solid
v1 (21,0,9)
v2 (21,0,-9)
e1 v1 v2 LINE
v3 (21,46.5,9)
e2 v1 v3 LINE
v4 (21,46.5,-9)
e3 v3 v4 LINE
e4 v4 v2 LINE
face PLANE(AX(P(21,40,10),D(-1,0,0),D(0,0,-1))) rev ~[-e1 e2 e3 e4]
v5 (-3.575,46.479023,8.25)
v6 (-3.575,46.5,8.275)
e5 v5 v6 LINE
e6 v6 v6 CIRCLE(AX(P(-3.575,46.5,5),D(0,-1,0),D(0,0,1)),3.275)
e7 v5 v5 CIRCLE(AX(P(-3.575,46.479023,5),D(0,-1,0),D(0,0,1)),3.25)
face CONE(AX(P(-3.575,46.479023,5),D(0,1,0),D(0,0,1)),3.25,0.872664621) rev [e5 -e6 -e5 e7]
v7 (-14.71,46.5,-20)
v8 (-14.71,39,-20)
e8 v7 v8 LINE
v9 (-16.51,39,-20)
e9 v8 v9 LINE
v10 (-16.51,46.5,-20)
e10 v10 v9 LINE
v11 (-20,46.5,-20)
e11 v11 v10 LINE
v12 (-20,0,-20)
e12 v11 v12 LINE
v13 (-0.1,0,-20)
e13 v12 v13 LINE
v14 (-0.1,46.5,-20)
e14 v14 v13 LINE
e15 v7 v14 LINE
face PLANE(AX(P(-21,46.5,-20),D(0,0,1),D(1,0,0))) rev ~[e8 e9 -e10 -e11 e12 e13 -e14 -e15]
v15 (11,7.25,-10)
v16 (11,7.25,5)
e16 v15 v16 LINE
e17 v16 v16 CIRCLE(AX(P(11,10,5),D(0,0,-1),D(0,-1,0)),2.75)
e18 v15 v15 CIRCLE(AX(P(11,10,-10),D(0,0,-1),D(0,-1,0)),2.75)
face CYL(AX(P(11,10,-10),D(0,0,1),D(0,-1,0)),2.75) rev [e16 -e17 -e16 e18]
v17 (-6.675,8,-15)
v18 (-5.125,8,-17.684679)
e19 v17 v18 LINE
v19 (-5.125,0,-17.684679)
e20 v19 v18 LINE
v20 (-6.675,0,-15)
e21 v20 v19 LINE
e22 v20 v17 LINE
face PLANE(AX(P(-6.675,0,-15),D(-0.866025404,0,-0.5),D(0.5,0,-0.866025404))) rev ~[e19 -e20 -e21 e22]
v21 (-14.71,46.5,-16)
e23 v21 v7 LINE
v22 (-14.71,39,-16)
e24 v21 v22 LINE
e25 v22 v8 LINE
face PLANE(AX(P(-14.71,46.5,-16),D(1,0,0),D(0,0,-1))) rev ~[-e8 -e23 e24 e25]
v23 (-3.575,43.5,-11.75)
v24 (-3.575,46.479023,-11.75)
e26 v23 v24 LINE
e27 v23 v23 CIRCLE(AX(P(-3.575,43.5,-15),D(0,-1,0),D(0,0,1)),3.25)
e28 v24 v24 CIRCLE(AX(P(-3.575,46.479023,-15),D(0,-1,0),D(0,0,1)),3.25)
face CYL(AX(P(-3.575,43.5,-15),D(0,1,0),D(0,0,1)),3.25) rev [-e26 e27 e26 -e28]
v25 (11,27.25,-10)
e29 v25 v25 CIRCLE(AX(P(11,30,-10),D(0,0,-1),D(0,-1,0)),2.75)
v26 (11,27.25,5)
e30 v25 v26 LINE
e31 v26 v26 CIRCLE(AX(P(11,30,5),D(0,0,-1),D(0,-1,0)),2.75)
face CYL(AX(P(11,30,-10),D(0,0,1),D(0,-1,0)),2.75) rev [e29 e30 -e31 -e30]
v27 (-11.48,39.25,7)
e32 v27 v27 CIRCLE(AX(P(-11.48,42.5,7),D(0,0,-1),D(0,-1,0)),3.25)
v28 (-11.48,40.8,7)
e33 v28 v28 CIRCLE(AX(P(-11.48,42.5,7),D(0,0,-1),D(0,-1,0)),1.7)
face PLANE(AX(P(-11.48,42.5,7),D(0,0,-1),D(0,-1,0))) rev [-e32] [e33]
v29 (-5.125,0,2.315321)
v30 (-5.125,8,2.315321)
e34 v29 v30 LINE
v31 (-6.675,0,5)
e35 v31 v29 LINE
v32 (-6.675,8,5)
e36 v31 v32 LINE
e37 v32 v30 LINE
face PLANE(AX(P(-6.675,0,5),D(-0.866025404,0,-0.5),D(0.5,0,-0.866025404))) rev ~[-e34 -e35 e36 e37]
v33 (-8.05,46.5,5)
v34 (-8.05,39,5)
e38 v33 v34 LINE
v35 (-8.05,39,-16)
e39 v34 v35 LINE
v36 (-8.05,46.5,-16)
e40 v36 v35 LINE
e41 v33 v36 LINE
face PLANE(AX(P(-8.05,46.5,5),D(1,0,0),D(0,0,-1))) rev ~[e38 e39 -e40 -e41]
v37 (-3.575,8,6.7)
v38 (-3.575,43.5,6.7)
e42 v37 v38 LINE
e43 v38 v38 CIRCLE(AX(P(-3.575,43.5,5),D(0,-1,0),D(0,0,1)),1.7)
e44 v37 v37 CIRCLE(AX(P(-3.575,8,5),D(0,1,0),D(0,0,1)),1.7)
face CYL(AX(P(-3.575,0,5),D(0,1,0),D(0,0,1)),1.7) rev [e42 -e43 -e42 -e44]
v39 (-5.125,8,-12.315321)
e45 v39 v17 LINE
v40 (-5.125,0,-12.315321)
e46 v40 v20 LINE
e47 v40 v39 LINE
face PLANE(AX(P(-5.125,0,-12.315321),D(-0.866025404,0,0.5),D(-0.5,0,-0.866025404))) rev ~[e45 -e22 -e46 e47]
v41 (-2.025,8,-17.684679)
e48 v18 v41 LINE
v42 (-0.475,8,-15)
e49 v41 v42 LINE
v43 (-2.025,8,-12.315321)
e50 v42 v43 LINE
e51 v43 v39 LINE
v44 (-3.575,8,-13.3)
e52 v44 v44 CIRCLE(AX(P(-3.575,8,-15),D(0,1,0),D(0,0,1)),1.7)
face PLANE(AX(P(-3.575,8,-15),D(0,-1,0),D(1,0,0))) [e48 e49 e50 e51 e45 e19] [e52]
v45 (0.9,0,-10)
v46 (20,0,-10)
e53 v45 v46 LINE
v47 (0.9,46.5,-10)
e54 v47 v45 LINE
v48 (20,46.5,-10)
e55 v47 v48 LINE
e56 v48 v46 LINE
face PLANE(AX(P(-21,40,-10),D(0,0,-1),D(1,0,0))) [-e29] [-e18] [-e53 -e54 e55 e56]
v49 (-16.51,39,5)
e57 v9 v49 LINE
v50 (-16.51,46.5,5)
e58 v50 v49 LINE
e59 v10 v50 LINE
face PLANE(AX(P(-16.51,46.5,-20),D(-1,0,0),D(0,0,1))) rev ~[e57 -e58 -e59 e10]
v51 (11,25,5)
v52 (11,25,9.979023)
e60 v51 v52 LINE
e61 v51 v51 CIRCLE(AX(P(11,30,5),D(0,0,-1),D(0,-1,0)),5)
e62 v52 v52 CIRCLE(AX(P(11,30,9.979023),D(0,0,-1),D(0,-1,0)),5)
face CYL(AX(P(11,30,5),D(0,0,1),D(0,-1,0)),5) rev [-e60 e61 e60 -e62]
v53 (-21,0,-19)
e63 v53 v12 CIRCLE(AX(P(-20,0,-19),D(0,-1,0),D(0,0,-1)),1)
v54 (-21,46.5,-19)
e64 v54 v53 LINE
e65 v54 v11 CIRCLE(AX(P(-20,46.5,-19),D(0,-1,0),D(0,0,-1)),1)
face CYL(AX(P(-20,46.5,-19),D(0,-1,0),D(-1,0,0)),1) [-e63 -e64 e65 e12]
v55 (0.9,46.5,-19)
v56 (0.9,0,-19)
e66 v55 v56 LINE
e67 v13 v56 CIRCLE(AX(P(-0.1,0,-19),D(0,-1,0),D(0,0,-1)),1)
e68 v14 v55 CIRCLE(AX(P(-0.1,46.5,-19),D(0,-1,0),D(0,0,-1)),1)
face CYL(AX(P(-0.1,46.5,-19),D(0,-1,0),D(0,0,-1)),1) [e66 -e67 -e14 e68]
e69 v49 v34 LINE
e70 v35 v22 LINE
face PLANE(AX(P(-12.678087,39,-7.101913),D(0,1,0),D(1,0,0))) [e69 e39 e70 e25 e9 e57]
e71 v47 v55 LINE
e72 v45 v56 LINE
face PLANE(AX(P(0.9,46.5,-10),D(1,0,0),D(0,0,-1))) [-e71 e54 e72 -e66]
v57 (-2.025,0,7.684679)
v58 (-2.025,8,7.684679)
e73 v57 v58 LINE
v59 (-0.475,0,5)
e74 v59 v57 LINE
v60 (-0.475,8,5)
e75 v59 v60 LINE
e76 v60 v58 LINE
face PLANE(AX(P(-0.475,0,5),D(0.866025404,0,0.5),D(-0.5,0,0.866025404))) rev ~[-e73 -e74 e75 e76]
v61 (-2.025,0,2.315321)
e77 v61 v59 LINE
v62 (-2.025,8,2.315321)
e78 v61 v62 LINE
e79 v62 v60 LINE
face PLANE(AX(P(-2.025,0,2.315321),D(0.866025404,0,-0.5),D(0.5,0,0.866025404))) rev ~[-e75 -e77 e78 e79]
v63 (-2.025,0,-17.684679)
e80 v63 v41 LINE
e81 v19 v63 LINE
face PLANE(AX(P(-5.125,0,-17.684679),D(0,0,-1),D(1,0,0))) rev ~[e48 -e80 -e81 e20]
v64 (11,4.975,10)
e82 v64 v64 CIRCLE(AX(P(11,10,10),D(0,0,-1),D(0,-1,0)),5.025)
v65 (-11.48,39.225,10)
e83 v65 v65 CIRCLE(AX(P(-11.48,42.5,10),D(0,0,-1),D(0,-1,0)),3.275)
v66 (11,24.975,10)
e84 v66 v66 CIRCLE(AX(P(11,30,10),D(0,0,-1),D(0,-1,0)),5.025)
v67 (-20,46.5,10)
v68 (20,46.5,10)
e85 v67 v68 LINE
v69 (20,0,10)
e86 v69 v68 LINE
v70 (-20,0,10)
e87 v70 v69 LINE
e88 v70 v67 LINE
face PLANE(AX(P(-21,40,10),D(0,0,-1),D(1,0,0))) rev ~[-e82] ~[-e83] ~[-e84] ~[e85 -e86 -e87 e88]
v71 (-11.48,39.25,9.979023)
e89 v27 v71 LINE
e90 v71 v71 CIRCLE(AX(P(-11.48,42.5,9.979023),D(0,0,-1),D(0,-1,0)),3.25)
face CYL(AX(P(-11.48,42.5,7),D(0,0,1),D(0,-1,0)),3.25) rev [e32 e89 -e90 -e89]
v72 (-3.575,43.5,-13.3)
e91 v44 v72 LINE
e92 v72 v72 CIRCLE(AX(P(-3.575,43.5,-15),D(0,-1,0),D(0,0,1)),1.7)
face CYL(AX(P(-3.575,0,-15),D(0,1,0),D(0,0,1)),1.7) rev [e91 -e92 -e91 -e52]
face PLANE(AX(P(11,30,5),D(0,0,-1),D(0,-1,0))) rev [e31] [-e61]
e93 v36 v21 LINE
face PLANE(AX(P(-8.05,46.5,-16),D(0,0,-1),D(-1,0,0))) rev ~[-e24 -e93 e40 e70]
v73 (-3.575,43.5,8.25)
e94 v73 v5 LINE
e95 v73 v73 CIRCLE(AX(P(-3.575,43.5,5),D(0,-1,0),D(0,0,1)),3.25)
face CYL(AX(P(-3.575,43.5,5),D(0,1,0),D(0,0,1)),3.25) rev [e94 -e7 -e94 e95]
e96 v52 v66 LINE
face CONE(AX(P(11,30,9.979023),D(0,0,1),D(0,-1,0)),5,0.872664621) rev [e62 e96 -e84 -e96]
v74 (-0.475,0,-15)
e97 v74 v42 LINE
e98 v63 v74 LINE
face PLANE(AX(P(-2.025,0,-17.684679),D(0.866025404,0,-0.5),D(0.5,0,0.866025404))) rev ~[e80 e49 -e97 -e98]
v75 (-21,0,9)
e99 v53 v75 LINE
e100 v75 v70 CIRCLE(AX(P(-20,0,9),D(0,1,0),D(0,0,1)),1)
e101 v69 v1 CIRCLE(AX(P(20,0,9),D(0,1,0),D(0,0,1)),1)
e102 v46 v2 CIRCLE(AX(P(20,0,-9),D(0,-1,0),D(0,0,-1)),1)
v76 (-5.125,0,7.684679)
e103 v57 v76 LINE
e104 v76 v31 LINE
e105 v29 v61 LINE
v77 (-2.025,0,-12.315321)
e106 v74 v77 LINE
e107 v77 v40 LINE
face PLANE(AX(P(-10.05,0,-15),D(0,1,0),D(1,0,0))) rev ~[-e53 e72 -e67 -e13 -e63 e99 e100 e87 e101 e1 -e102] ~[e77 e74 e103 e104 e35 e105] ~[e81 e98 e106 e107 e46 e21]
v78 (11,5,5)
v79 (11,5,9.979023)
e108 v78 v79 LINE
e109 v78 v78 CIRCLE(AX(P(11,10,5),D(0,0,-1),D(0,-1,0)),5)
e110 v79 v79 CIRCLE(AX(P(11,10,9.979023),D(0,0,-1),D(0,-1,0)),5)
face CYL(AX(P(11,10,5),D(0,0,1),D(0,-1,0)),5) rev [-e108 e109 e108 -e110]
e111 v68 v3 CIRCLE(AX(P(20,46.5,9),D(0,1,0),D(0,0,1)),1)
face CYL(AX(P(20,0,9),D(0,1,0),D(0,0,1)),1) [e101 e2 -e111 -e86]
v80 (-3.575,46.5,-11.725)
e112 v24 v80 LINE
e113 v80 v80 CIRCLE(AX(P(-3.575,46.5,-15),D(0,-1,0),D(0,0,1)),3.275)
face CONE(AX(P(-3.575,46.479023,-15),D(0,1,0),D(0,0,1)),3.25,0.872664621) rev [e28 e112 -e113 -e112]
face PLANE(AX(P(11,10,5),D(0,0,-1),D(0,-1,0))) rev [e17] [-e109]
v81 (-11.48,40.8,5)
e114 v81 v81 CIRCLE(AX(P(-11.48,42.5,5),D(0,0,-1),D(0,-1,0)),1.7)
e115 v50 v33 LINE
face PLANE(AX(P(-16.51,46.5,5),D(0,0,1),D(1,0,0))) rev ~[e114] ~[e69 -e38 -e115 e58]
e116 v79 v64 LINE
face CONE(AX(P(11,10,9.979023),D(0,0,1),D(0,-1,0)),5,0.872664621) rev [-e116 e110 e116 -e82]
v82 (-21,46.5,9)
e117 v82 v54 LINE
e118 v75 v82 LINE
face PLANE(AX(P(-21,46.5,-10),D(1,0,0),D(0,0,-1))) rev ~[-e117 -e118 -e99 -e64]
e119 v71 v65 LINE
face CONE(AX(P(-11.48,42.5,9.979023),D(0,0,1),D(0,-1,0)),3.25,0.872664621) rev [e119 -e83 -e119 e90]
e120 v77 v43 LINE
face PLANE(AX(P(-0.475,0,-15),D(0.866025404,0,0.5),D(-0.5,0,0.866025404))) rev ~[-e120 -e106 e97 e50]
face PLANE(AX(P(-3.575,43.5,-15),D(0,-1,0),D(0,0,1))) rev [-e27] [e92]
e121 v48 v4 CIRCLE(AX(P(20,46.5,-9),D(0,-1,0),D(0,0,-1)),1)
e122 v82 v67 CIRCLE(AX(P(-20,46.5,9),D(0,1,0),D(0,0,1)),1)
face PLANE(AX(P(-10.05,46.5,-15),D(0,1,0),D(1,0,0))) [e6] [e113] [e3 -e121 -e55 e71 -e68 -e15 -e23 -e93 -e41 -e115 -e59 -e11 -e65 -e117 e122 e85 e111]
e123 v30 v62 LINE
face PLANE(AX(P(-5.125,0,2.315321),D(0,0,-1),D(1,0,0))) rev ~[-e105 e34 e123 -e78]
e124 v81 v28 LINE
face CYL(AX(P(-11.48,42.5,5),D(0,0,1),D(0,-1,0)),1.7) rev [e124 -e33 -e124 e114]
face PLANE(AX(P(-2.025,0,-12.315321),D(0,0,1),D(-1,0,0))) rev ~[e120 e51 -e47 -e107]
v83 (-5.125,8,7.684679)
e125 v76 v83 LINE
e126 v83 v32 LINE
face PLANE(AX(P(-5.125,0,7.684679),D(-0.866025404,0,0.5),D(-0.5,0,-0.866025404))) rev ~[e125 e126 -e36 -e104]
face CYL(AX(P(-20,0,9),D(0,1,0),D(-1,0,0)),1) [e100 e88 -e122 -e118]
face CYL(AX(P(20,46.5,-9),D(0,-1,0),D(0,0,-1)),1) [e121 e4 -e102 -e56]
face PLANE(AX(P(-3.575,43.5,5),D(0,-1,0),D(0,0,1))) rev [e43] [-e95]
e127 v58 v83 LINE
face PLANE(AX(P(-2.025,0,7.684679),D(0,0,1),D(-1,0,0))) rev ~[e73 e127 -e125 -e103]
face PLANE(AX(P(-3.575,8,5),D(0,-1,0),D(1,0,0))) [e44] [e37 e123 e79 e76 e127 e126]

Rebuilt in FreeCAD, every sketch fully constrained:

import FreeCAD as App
import Part
import Sketcher
from FreeCAD import Vector
Q = App.Units.Quantity


def edges_at(feature, points):
    """Names of the edges that pass closest to the given points."""
    edges = feature.Shape.Edges
    near = lambda p: min(range(len(edges)), key=lambda i: edges[i].distToShape(Part.Vertex(*p))[0])
    return sorted({f"Edge{near(p) + 1}" for p in points})


def add_polygon(sketch, points):
    """Adds a closed chain of lines whose ends are joined by coincident constraints."""
    first, n = sketch.GeometryCount, len(points)
    for a, b in zip(points, points[1:] + points[:1]):
        sketch.addGeometry(Part.LineSegment(App.Vector(*a, 0), App.Vector(*b, 0)), False)
    for i in range(n):
        sketch.addConstraint(Sketcher.Constraint("Coincident", first + i, 2, first + (i + 1) % n, 1))

doc = App.newDocument("Part")
body = doc.addObject("PartDesign::Body", "Body")

sketch1 = body.newObject("Sketcher::SketchObject", "Sketch")
sketch1.AttachmentSupport = (doc.getObject("XZ_Plane"), [""])
sketch1.MapMode = "FlatFace"
add_polygon(sketch1, [(-21, -10), (-21, 10), (21, 10), (21, -10)])
sketch1.addConstraint([
    Sketcher.Constraint("Vertical", 0),
    Sketcher.Constraint("Horizontal", 1),
    Sketcher.Constraint("Vertical", 2),
    Sketcher.Constraint("Horizontal", 3),
    Sketcher.Constraint("Symmetric", 0, 2, 2, 2, -1, 1),
    Sketcher.Constraint("DistanceX", 1, 1, 1, 2, Q("42 mm")),
    Sketcher.Constraint("DistanceY", 0, 1, 0, 2, Q("20 mm")),
])
pad1 = body.newObject("PartDesign::Pad", "Pad")
pad1.Profile = sketch1
pad1.Length = 40
pad1.Reversed = True

sketch2 = body.newObject("Sketcher::SketchObject", "Sketch001")
sketch2.AttachmentSupport = (doc.getObject("YZ_Plane"), [""])
sketch2.MapMode = "FlatFace"
sketch2.AttachmentOffset = App.Placement(Vector(0, 0, 11), App.Rotation())
add_polygon(sketch2, [(30, -10), (30, 10), (24.975, 10), (25, 9.979023), (25, 5), (27.25, 5), (27.25, -10)])
sketch2.addGeometry(Part.LineSegment(Vector(30, 10, 0), Vector(30, -10, 0)), True)
sketch2.addConstraint([
    Sketcher.Constraint("Vertical", 0),
    Sketcher.Constraint("Horizontal", 1),
    Sketcher.Constraint("Vertical", 3),
    Sketcher.Constraint("Horizontal", 4),
    Sketcher.Constraint("Vertical", 5),
    Sketcher.Constraint("Horizontal", 6),
    Sketcher.Constraint("Vertical", 7),
    Sketcher.Constraint("Coincident", 7, 1, 0, 2),
    Sketcher.Constraint("Horizontal", 5, 2, 7, 2),
    Sketcher.Constraint("DistanceY", 0, 1, 0, 2, Q("20 mm")),
    Sketcher.Constraint("DistanceY", 5, 2, 5, 1, Q("15 mm")),
    Sketcher.Constraint("Angle", 2, Q("-40 deg")),
    Sketcher.Constraint("DistanceX", -1, 1, 0, 2, Q("30 mm")),
    Sketcher.Constraint("DistanceY", -1, 1, 0, 2, Q("10 mm")),
    Sketcher.Constraint("DistanceX", -1, 1, 2, 2, Q("25 mm")),
    Sketcher.Constraint("DistanceX", 4, 1, 4, 2, Q("2.25 mm")),
    Sketcher.Constraint("DistanceX", 1, 2, 1, 1, Q("5.025 mm")),
])
groove = body.newObject("PartDesign::Groove", "Groove")
groove.Profile = sketch2
groove.ReferenceAxis = (sketch2, ["Axis0"])
groove.Angle = 360
doc.recompute()

linearpattern = body.newObject("PartDesign::LinearPattern", "LinearPattern")
linearpattern.Originals = [groove]
linearpattern.Direction = (doc.getObject("Y_Axis"), [""])
linearpattern.Mode = "offset"
linearpattern.Offset = 20
linearpattern.Occurrences = 2
linearpattern.Reversed = True
body.Tip = linearpattern

sketch3 = body.newObject("Sketcher::SketchObject", "Sketch002")
sketch3.AttachmentSupport = (doc.getObject("XZ_Plane"), [""])
sketch3.MapMode = "FlatFace"
sketch3.AttachmentOffset = App.Placement(Vector(0, 0, -40), App.Rotation())
add_polygon(sketch3, [(-21, -10), (-21, 10), (21, 10), (21, -10)])
sketch3.addConstraint([
    Sketcher.Constraint("Vertical", 0),
    Sketcher.Constraint("Horizontal", 1),
    Sketcher.Constraint("Vertical", 2),
    Sketcher.Constraint("Horizontal", 3),
    Sketcher.Constraint("Symmetric", 0, 2, 2, 2, -1, 1),
    Sketcher.Constraint("DistanceX", 1, 1, 1, 2, Q("42 mm")),
    Sketcher.Constraint("DistanceY", 0, 1, 0, 2, Q("20 mm")),
])
pad2 = body.newObject("PartDesign::Pad", "Pad001")
pad2.Profile = sketch3
pad2.Length = 6.5
pad2.Reversed = True

sketch4 = body.newObject("Sketcher::SketchObject", "Sketch003")
sketch4.AttachmentSupport = (doc.getObject("XZ_Plane"), [""])
sketch4.MapMode = "FlatFace"
sketch4.AttachmentOffset = App.Placement(Vector(0, 0, -46.5), App.Rotation())
add_polygon(sketch4, [(-21, -20), (-21, -10), (0.9, -10), (0.9, -20)])
sketch4.addConstraint([
    Sketcher.Constraint("Vertical", 0),
    Sketcher.Constraint("Horizontal", 1),
    Sketcher.Constraint("Vertical", 2),
    Sketcher.Constraint("Horizontal", 3),
    Sketcher.Constraint("DistanceY", 0, 1, 0, 2, Q("10 mm")),
    Sketcher.Constraint("DistanceX", 1, 1, 1, 2, Q("21.9 mm")),
    Sketcher.Constraint("DistanceX", 0, 2, -1, 1, Q("21 mm")),
    Sketcher.Constraint("DistanceY", 0, 2, -1, 1, Q("10 mm")),
])
pad3 = body.newObject("PartDesign::Pad", "Pad002")
pad3.Profile = sketch4
pad3.Length = 46.5

sketch5 = body.newObject("Sketcher::SketchObject", "Sketch004")
sketch5.AttachmentSupport = (doc.getObject("XZ_Plane"), [""])
sketch5.MapMode = "FlatFace"
sketch5.AttachmentOffset = App.Placement(Vector(0, 0, -46.5), App.Rotation())
add_polygon(sketch5, [(-16.51, -20), (-16.51, 5), (-8.05, 5), (-8.05, -16), (-14.71, -16), (-14.71, -20)])
sketch5.addConstraint([
    Sketcher.Constraint("Vertical", 0),
    Sketcher.Constraint("Horizontal", 1),
    Sketcher.Constraint("Vertical", 2),
    Sketcher.Constraint("Horizontal", 3),
    Sketcher.Constraint("Vertical", 4),
    Sketcher.Constraint("Horizontal", 5),
    Sketcher.Constraint("DistanceY", 0, 1, 0, 2, Q("25 mm")),
    Sketcher.Constraint("DistanceY", 2, 2, 2, 1, Q("21 mm")),
    Sketcher.Constraint("DistanceX", 5, 2, 5, 1, Q("1.8 mm")),
    Sketcher.Constraint("DistanceY", -1, 1, 0, 2, Q("5 mm")),
    Sketcher.Constraint("DistanceX", 1, 1, 1, 2, Q("8.46 mm")),
    Sketcher.Constraint("DistanceX", 0, 2, -1, 1, Q("16.51 mm")),
])
pocket1 = body.newObject("PartDesign::Pocket", "Pocket")
pocket1.Profile = sketch5
pocket1.Length = 7.5
pocket1.Reversed = True
doc.recompute()

fillet = body.newObject("PartDesign::Fillet", "Fillet")
fillet.Base = (pocket1, edges_at(pocket1, [
    (0.9, 23.25, -20),
    (-21, 23.25, -20),
    (21, 23.25, -10),
    (21, 23.25, 10),
    (-21, 23.25, 10),
]))
fillet.Radius = 1

sketch6 = body.newObject("Sketcher::SketchObject", "Sketch005")
sketch6.AttachmentSupport = (doc.getObject("YZ_Plane"), [""])
sketch6.MapMode = "FlatFace"
sketch6.AttachmentOffset = App.Placement(Vector(0, 0, -11.48), App.Rotation())
add_polygon(sketch6, [(42.5, 3.978537), (42.5, 10), (39.225, 10), (39.25, 9.979023), (39.25, 7), (40.8, 7), (40.8, 5)])
sketch6.addGeometry(Part.LineSegment(Vector(42.5, 10, 0), Vector(42.5, 3.978537, 0)), True)
sketch6.addConstraint([
    Sketcher.Constraint("Vertical", 0),
    Sketcher.Constraint("Horizontal", 1),
    Sketcher.Constraint("Vertical", 3),
    Sketcher.Constraint("Horizontal", 4),
    Sketcher.Constraint("Vertical", 5),
    Sketcher.Constraint("Vertical", 7),
    Sketcher.Constraint("Coincident", 7, 1, 0, 2),
    Sketcher.Constraint("Equal", 0, 7),
    Sketcher.Constraint("DistanceY", 5, 2, 5, 1, Q("2 mm")),
    Sketcher.Constraint("Angle", 2, Q("-40 deg")),
    Sketcher.Constraint("Angle", 6, Q("-31 deg")),
    Sketcher.Constraint("DistanceY", -1, 1, 0, 2, Q("10 mm")),
    Sketcher.Constraint("DistanceY", -1, 1, 3, 2, Q("7 mm")),
    Sketcher.Constraint("DistanceX", 4, 1, 4, 2, Q("1.55 mm")),
    Sketcher.Constraint("DistanceX", -1, 1, 0, 2, Q("42.5 mm")),
    Sketcher.Constraint("DistanceX", -1, 1, 4, 2, Q("40.8 mm")),
    Sketcher.Constraint("DistanceX", 1, 2, 1, 1, Q("3.275 mm")),
])
groove2 = body.newObject("PartDesign::Groove", "Groove001")
groove2.Profile = sketch6
groove2.ReferenceAxis = (sketch6, ["Axis0"])
groove2.Angle = 360

sketch7 = body.newObject("Sketcher::SketchObject", "Sketch006")
sketch7.AttachmentSupport = (doc.getObject("YZ_Plane"), [""])
sketch7.MapMode = "FlatFace"
sketch7.AttachmentOffset = App.Placement(Vector(0, 0, -3.575), App.Rotation())
add_polygon(sketch7, [(0, -15), (46.5, -15), (46.5, -11.725), (46.479023, -11.75), (43.5, -11.75), (43.5, -13.3), (0, -13.3)])
sketch7.addGeometry(Part.LineSegment(Vector(46.5, -15, 0), Vector(0, -15, 0)), True)
sketch7.addConstraint([
    Sketcher.Constraint("Horizontal", 0),
    Sketcher.Constraint("Vertical", 1),
    Sketcher.Constraint("Horizontal", 3),
    Sketcher.Constraint("Vertical", 4),
    Sketcher.Constraint("Horizontal", 5),
    Sketcher.Constraint("Vertical", 6),
    Sketcher.Constraint("Horizontal", 7),
    Sketcher.Constraint("Coincident", 7, 1, 0, 2),
    Sketcher.Constraint("PointOnObject", 5, 2, -2),
    Sketcher.Constraint("PointOnObject", 7, 2, -2),
    Sketcher.Constraint("Angle", 2, Q("-130 deg")),
    Sketcher.Constraint("DistanceX", 0, 1, 0, 2, Q("46.5 mm")),
    Sketcher.Constraint("DistanceX", 5, 2, 5, 1, Q("43.5 mm")),
    Sketcher.Constraint("DistanceY", 6, 2, 6, 1, Q("1.7 mm")),
    Sketcher.Constraint("DistanceY", 0, 2, -1, 1, Q("15 mm")),
    Sketcher.Constraint("DistanceY", 4, 2, 4, 1, Q("1.55 mm")),
    Sketcher.Constraint("DistanceY", 1, 1, 1, 2, Q("3.275 mm")),
])
groove3 = body.newObject("PartDesign::Groove", "Groove002")
groove3.Profile = sketch7
groove3.ReferenceAxis = (sketch7, ["Axis0"])
groove3.Angle = 360
doc.recompute()

linearpattern2 = body.newObject("PartDesign::LinearPattern", "LinearPattern001")
linearpattern2.Originals = [groove3]
linearpattern2.Direction = (doc.getObject("Z_Axis"), [""])
linearpattern2.Mode = "offset"
linearpattern2.Offset = 20
linearpattern2.Occurrences = 2
body.Tip = linearpattern2

sketch8 = body.newObject("Sketcher::SketchObject", "Sketch007")
sketch8.AttachmentSupport = (doc.getObject("XZ_Plane"), [""])
sketch8.MapMode = "FlatFace"
add_polygon(sketch8, [(-0.475, 5), (-2.025, 7.684679), (-5.125, 7.684679), (-6.675, 5), (-5.125, 2.315321), (-2.025, 2.315321)])
add_polygon(sketch8, [(-0.475, -15), (-2.025, -12.315321), (-5.125, -12.315321), (-6.675, -15), (-5.125, -17.684679), (-2.025, -17.684679)])
sketch8.addConstraint([
    Sketcher.Constraint("Horizontal", 1),
    Sketcher.Constraint("Horizontal", 4),
    Sketcher.Constraint("Horizontal", 7),
    Sketcher.Constraint("Horizontal", 10),
    Sketcher.Constraint("Parallel", 0, 3),
    Sketcher.Constraint("Parallel", 2, 5),
    Sketcher.Constraint("Parallel", 3, 6),
    Sketcher.Constraint("Parallel", 5, 8),
    Sketcher.Constraint("Parallel", 6, 9),
    Sketcher.Constraint("Parallel", 8, 11),
    Sketcher.Constraint("Horizontal", 2, 2, 5, 2),
    Sketcher.Constraint("Horizontal", 8, 2, 11, 2),
    Sketcher.Constraint("Vertical", 1, 2, 3, 2),
    Sketcher.Constraint("Vertical", 0, 2, 4, 2),
    Sketcher.Constraint("Vertical", 4, 2, 6, 2),
    Sketcher.Constraint("Vertical", 3, 2, 7, 2),
    Sketcher.Constraint("Vertical", 2, 2, 8, 2),
    Sketcher.Constraint("Vertical", 7, 2, 9, 2),
    Sketcher.Constraint("Angle", 0, Q("120 deg")),
    Sketcher.Constraint("DistanceX", 1, 2, 1, 1, Q("3.1 mm")),
    Sketcher.Constraint("DistanceY", -1, 1, 2, 2, Q("5 mm")),
    Sketcher.Constraint("DistanceY", 8, 2, -1, 1, Q("15 mm")),
    Sketcher.Constraint("Distance", 0, Q("3.1 mm")),
    Sketcher.Constraint("DistanceX", 0, 2, -1, 1, Q("2.025 mm")),
])
pocket2 = body.newObject("PartDesign::Pocket", "Pocket001")
pocket2.Profile = sketch8
pocket2.Length = 8

doc.recompute()
